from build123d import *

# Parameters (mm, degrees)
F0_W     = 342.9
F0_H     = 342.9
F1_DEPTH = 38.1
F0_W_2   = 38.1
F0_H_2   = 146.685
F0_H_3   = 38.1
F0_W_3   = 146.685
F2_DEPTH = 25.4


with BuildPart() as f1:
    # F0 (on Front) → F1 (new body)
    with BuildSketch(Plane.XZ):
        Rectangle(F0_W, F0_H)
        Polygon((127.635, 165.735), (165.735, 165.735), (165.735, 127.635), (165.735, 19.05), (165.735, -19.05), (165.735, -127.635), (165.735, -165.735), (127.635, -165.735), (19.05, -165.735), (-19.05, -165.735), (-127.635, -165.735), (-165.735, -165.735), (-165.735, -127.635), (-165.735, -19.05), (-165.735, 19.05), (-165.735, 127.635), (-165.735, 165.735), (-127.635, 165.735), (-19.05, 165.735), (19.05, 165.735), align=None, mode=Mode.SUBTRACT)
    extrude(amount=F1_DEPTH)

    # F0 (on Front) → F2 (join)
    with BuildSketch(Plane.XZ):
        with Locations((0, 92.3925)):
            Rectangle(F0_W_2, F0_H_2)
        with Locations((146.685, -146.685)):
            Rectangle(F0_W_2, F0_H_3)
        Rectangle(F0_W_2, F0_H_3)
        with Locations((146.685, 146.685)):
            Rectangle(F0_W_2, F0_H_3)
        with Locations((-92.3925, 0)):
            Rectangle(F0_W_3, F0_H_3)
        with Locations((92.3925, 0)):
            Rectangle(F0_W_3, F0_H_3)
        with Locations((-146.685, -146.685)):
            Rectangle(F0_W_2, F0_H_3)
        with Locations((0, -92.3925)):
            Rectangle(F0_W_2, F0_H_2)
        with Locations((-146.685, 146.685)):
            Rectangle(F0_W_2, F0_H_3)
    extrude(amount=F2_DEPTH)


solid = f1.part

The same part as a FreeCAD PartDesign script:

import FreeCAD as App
import Part
import Sketcher
from FreeCAD import Vector
Q = App.Units.Quantity

doc = App.newDocument("Part")
body = doc.addObject("PartDesign::Body", "Body")

# Sketch on XZ plane
sketch1 = body.newObject("Sketcher::SketchObject", "Sketch")
sketch1.AttachmentSupport = (doc.getObject("XZ_Plane"), [""])
sketch1.MapMode = "FlatFace"
sketch1.addGeometry([
    Part.LineSegment(Vector(-171.45, 171.45, 0), Vector(-171.45, -171.45, 0)),  # 0
    Part.LineSegment(Vector(-171.45, -171.45, 0), Vector(171.45, -171.45, 0)),  # 1
    Part.LineSegment(Vector(171.45, -171.45, 0), Vector(171.45, 171.45, 0)),  # 2
    Part.LineSegment(Vector(171.45, 171.45, 0), Vector(-171.45, 171.45, 0)),  # 3
    Part.LineSegment(Vector(-165.735, 165.735, 0), Vector(165.735, 165.735, 0)),  # 4
    Part.LineSegment(Vector(165.735, 165.735, 0), Vector(165.735, -165.735, 0)),  # 5
    Part.LineSegment(Vector(165.735, -165.735, 0), Vector(-165.735, -165.735, 0)),  # 6
    Part.LineSegment(Vector(-165.735, -165.735, 0), Vector(-165.735, 165.735, 0)),  # 7
], False)
sketch1.addConstraint([
    Sketcher.Constraint("Coincident", 0, 2, 1, 1),
    Sketcher.Constraint("Coincident", 1, 2, 2, 1),
    Sketcher.Constraint("Coincident", 2, 2, 3, 1),
    Sketcher.Constraint("Coincident", 3, 2, 0, 1),
    Sketcher.Constraint("Coincident", 4, 2, 5, 1),
    Sketcher.Constraint("Coincident", 5, 2, 6, 1),
    Sketcher.Constraint("Coincident", 6, 2, 7, 1),
    Sketcher.Constraint("Coincident", 7, 2, 4, 1),
    Sketcher.Constraint("Vertical", 0),
    Sketcher.Constraint("Horizontal", 1),
    Sketcher.Constraint("Vertical", 2),
    Sketcher.Constraint("Horizontal", 3),
    Sketcher.Constraint("Horizontal", 4),
    Sketcher.Constraint("Vertical", 5),
    Sketcher.Constraint("Horizontal", 6),
    Sketcher.Constraint("Vertical", 7),
    Sketcher.Constraint("Symmetric", 0, 2, 2, 2, -1, 1),
    Sketcher.Constraint("Symmetric", 4, 2, 6, 2, -1, 1),
    Sketcher.Constraint("Equal", 3, 0),
    Sketcher.Constraint("Equal", 6, 5),
    Sketcher.Constraint("DistanceX", 1, 1, 1, 2, Q("13.5 in")),
    Sketcher.Constraint("DistanceX", 4, 1, 4, 2, Q("13.05 in")),
])
pad1 = body.newObject("PartDesign::Pad", "Pad")
pad1.Profile = sketch1
pad1.Length = Q("1.5 in")

# Sketch on XZ plane
sketch2 = body.newObject("Sketcher::SketchObject", "Sketch001")
sketch2.AttachmentSupport = (doc.getObject("XZ_Plane"), [""])
sketch2.MapMode = "FlatFace"
sketch2.addGeometry([
    Part.LineSegment(Vector(-19.05, 165.735, 0), Vector(-19.05, 19.05, 0)),  # 0
    Part.LineSegment(Vector(-19.05, 19.05, 0), Vector(-165.735, 19.05, 0)),  # 1
    Part.LineSegment(Vector(-165.735, 19.05, 0), Vector(-165.735, -19.05, 0)),  # 2
    Part.LineSegment(Vector(-165.735, -19.05, 0), Vector(-19.05, -19.05, 0)),  # 3
    Part.LineSegment(Vector(-19.05, -19.05, 0), Vector(-19.05, -165.735, 0)),  # 4
    Part.LineSegment(Vector(-19.05, -165.735, 0), Vector(19.05, -165.735, 0)),  # 5
    Part.LineSegment(Vector(19.05, -165.735, 0), Vector(19.05, -19.05, 0)),  # 6
    Part.LineSegment(Vector(19.05, -19.05, 0), Vector(165.735, -19.05, 0)),  # 7
    Part.LineSegment(Vector(165.735, -19.05, 0), Vector(165.735, 19.05, 0)),  # 8
    Part.LineSegment(Vector(165.735, 19.05, 0), Vector(19.05, 19.05, 0)),  # 9
    Part.LineSegment(Vector(19.05, 19.05, 0), Vector(19.05, 165.735, 0)),  # 10
    Part.LineSegment(Vector(19.05, 165.735, 0), Vector(-19.05, 165.735, 0)),  # 11
    Part.LineSegment(Vector(127.635, -127.635, 0), Vector(127.635, -165.735, 0)),  # 12
    Part.LineSegment(Vector(127.635, -165.735, 0), Vector(165.735, -165.735, 0)),  # 13
    Part.LineSegment(Vector(165.735, -165.735, 0), Vector(165.735, -127.635, 0)),  # 14
    Part.LineSegment(Vector(165.735, -127.635, 0), Vector(127.635, -127.635, 0)),  # 15
    Part.LineSegment(Vector(127.635, 165.735, 0), Vector(127.635, 127.635, 0)),  # 16
    Part.LineSegment(Vector(127.635, 127.635, 0), Vector(165.735, 127.635, 0)),  # 17
    Part.LineSegment(Vector(165.735, 127.635, 0), Vector(165.735, 165.735, 0)),  # 18
    Part.LineSegment(Vector(165.735, 165.735, 0), Vector(127.635, 165.735, 0)),  # 19
    Part.LineSegment(Vector(-165.735, -127.635, 0), Vector(-165.735, -165.735, 0)),  # 20
    Part.LineSegment(Vector(-165.735, -165.735, 0), Vector(-127.635, -165.735, 0)),  # 21
    Part.LineSegment(Vector(-127.635, -165.735, 0), Vector(-127.635, -127.635, 0)),  # 22
    Part.LineSegment(Vector(-127.635, -127.635, 0), Vector(-165.735, -127.635, 0)),  # 23
    Part.LineSegment(Vector(-165.735, 165.735, 0), Vector(-165.735, 127.635, 0)),  # 24
    Part.LineSegment(Vector(-165.735, 127.635, 0), Vector(-127.635, 127.635, 0)),  # 25
    Part.LineSegment(Vector(-127.635, 127.635, 0), Vector(-127.635, 165.735, 0)),  # 26
    Part.LineSegment(Vector(-127.635, 165.735, 0), Vector(-165.735, 165.735, 0)),  # 27
], False)
sketch2.addConstraint([
    Sketcher.Constraint("Coincident", 0, 2, 1, 1),
    Sketcher.Constraint("Coincident", 1, 2, 2, 1),
    Sketcher.Constraint("Coincident", 2, 2, 3, 1),
    Sketcher.Constraint("Coincident", 3, 2, 4, 1),
    Sketcher.Constraint("Coincident", 4, 2, 5, 1),
    Sketcher.Constraint("Coincident", 5, 2, 6, 1),
    Sketcher.Constraint("Coincident", 6, 2, 7, 1),
    Sketcher.Constraint("Coincident", 7, 2, 8, 1),
    Sketcher.Constraint("Coincident", 8, 2, 9, 1),
    Sketcher.Constraint("Coincident", 9, 2, 10, 1),
    Sketcher.Constraint("Coincident", 10, 2, 11, 1),
    Sketcher.Constraint("Coincident", 11, 2, 0, 1),
    Sketcher.Constraint("Coincident", 12, 2, 13, 1),
    Sketcher.Constraint("Coincident", 13, 2, 14, 1),
    Sketcher.Constraint("Coincident", 14, 2, 15, 1),
    Sketcher.Constraint("Coincident", 15, 2, 12, 1),
    Sketcher.Constraint("Coincident", 16, 2, 17, 1),
    Sketcher.Constraint("Coincident", 17, 2, 18, 1),
    Sketcher.Constraint("Coincident", 18, 2, 19, 1),
    Sketcher.Constraint("Coincident", 19, 2, 16, 1),
    Sketcher.Constraint("Coincident", 20, 2, 21, 1),
    Sketcher.Constraint("Coincident", 21, 2, 22, 1),
    Sketcher.Constraint("Coincident", 22, 2, 23, 1),
    Sketcher.Constraint("Coincident", 23, 2, 20, 1),
    Sketcher.Constraint("Coincident", 24, 2, 25, 1),
    Sketcher.Constraint("Coincident", 25, 2, 26, 1),
    Sketcher.Constraint("Coincident", 26, 2, 27, 1),
    Sketcher.Constraint("Coincident", 27, 2, 24, 1),
    Sketcher.Constraint("Vertical", 0),
    Sketcher.Constraint("Horizontal", 1),
    Sketcher.Constraint("Vertical", 2),
    Sketcher.Constraint("Horizontal", 3),
    Sketcher.Constraint("Vertical", 4),
    Sketcher.Constraint("Horizontal", 5),
    Sketcher.Constraint("Vertical", 6),
    Sketcher.Constraint("Horizontal", 7),
    Sketcher.Constraint("Vertical", 8),
    Sketcher.Constraint("Horizontal", 9),
    Sketcher.Constraint("Vertical", 10),
    Sketcher.Constraint("Horizontal", 11),
    Sketcher.Constraint("Vertical", 12),
    Sketcher.Constraint("Horizontal", 13),
    Sketcher.Constraint("Vertical", 14),
    Sketcher.Constraint("Horizontal", 15),
    Sketcher.Constraint("Vertical", 16),
    Sketcher.Constraint("Horizontal", 17),
    Sketcher.Constraint("Vertical", 18),
    Sketcher.Constraint("Horizontal", 19),
    Sketcher.Constraint("Vertical", 20),
    Sketcher.Constraint("Horizontal", 21),
    Sketcher.Constraint("Vertical", 22),
    Sketcher.Constraint("Horizontal", 23),
    Sketcher.Constraint("Vertical", 24),
    Sketcher.Constraint("Horizontal", 25),
    Sketcher.Constraint("Vertical", 26),
    Sketcher.Constraint("Horizontal", 27),
    Sketcher.Constraint("Symmetric", 0, 2, 6, 2, -1, 1),
    Sketcher.Constraint("Symmetric", 2, 2, 8, 2, -1, 1),
    Sketcher.Constraint("Symmetric", 4, 2, 10, 2, -1, 1),
    Sketcher.Constraint("Symmetric", 18, 2, 20, 2, -1, 1),
    Sketcher.Constraint("Symmetric", 16, 2, 22, 2, -1, 1),
    Sketcher.Constraint("Symmetric", 14, 2, 24, 2, -1, 1),
    Sketcher.Constraint("Symmetric", 12, 2, 26, 2, -1, 1),
    Sketcher.Constraint("Symmetric", 3, 2, 6, 2, -2),
    Sketcher.Constraint("Symmetric", 13, 2, 20, 2, -2),
    Sketcher.Constraint("Symmetric", 15, 2, 22, 2, -2),
    Sketcher.Constraint("Horizontal", 5, 2, 12, 2),
    Sketcher.Constraint("Vertical", 8, 2, 13, 2),
    Sketcher.Constraint("Equal", 11, 13),
    Sketcher.Constraint("Equal", 9, 0),
    Sketcher.Constraint("Equal", 27, 2),
    Sketcher.Constraint("Equal", 8, 12),
    Sketcher.Constraint("DistanceX", 5, 1, 5, 2, Q("1.5 in")),
    Sketcher.Constraint("DistanceX", 1, 2, 1, 1, Q("5.775 in")),
])
pad2 = body.newObject("PartDesign::Pad", "Pad001")
pad2.Profile = sketch2
pad2.Length = Q("1 in")

doc.recompute()
